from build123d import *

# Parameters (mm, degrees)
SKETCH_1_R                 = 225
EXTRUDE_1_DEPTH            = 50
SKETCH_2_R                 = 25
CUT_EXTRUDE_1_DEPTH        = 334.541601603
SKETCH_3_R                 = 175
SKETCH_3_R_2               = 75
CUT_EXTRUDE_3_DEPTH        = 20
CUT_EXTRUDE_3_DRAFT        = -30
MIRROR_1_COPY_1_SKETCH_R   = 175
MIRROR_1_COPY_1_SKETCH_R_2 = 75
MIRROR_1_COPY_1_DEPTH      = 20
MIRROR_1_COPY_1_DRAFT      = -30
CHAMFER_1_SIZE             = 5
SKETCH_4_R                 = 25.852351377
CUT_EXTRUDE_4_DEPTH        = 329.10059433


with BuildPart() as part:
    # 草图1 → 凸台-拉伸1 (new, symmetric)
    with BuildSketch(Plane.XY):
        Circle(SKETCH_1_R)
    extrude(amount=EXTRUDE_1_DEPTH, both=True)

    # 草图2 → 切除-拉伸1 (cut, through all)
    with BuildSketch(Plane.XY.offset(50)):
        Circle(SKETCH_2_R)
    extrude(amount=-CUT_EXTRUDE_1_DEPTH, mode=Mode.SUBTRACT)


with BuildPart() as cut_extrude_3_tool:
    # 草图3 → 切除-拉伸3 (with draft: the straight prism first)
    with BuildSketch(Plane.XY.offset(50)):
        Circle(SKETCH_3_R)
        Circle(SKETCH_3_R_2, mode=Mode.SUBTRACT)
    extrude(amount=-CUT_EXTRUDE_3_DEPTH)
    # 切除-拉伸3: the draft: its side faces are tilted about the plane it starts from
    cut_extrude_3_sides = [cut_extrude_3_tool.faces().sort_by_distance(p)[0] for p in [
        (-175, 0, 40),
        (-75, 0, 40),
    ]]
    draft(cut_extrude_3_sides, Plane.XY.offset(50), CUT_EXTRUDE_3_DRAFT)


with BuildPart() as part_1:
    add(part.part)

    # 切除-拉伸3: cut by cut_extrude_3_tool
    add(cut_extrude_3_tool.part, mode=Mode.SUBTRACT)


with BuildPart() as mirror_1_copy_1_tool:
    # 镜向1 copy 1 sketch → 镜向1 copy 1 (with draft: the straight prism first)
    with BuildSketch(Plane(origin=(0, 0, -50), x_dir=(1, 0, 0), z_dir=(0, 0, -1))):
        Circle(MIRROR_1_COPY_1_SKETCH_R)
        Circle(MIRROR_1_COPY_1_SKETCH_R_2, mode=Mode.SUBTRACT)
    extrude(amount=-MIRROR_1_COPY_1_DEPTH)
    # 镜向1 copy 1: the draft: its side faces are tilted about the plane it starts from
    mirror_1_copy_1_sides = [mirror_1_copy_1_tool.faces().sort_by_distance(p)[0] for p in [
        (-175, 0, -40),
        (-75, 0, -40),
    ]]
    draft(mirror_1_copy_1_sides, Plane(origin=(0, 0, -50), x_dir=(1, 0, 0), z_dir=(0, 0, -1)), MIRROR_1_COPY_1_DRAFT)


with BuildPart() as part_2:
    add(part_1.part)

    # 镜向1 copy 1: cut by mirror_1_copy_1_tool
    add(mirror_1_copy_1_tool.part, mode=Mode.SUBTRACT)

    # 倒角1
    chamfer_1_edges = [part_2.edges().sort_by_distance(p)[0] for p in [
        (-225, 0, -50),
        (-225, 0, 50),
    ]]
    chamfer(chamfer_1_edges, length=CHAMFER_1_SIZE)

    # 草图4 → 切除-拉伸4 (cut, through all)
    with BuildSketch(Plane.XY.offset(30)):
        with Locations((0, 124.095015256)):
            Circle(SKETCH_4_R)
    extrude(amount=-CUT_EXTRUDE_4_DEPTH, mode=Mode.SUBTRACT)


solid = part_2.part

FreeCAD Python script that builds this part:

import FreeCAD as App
import Part
import Sketcher

V = App.Vector
Q = App.Units.Quantity


def edges_at(feature, points):
    """Names of the edges that pass closest to the given points."""
    edges = feature.Shape.Edges
    near = lambda p: min(range(len(edges)), key=lambda i: edges[i].distToShape(Part.Vertex(*p))[0])
    return sorted({f"Edge{near(p) + 1}" for p in points})


def faces_at(feature, points):
    """Names of the faces that lie closest to the given points."""
    faces = feature.Shape.Faces
    near = lambda p: min(range(len(faces)), key=lambda i: faces[i].distToShape(Part.Vertex(*p))[0])
    return sorted({f"Face{near(p) + 1}" for p in points})

doc = App.newDocument("Part")
body = doc.addObject("PartDesign::Body", "Body")

# Sketch on XY plane
sketch1 = body.newObject("Sketcher::SketchObject", "Sketch")
sketch1.AttachmentSupport = (doc.getObject("XY_Plane"), [""])
sketch1.MapMode = "FlatFace"
sketch1.addGeometry(Part.Circle(V(0, 0, 0), V(0, 0, 1), 225), False)
sketch1.addConstraint(Sketcher.Constraint("Coincident", 0, 3, -1, 1))
sketch1.addConstraint(Sketcher.Constraint("Diameter", 0, Q("450 mm")))
pad1 = body.newObject("PartDesign::Pad", "Pad")
pad1.Profile = sketch1
pad1.Length = 100
pad1.Midplane = True

# Sketch on XY plane
sketch2 = body.newObject("Sketcher::SketchObject", "Sketch001")
sketch2.AttachmentSupport = (doc.getObject("XY_Plane"), [""])
sketch2.MapMode = "FlatFace"
sketch2.AttachmentOffset = App.Placement(V(0, 0, 50), App.Rotation())
sketch2.addGeometry(Part.Circle(V(0, 0, 0), V(0, 0, 1), 25), False)
sketch2.addConstraint(Sketcher.Constraint("Coincident", 0, 3, -1, 1))
sketch2.addConstraint(Sketcher.Constraint("Diameter", 0, Q("50 mm")))
pocket1 = body.newObject("PartDesign::Pocket", "Pocket")
pocket1.Profile = sketch2
pocket1.Type = "ThroughAll"
body2 = doc.addObject("PartDesign::Body", "Body001")

# Sketch on XY plane
sketch3 = body2.newObject("Sketcher::SketchObject", "Sketch002")
sketch3.AttachmentSupport = (doc.getObject("XY_Plane001"), [""])
sketch3.MapMode = "FlatFace"
sketch3.AttachmentOffset = App.Placement(V(0, 0, 50), App.Rotation())
sketch3.addGeometry(Part.Circle(V(0, 0, 0), V(0, 0, 1), 175), False)
sketch3.addGeometry(Part.Circle(V(0, 0, 0), V(0, 0, 1), 75), False)
sketch3.addConstraint(Sketcher.Constraint("Coincident", 0, 3, -1, 1))
sketch3.addConstraint(Sketcher.Constraint("Coincident", 1, 3, -1, 1))
sketch3.addConstraint(Sketcher.Constraint("Diameter", 0, Q("350 mm")))
sketch3.addConstraint(Sketcher.Constraint("Diameter", 1, Q("150 mm")))
pad2 = body2.newObject("PartDesign::Pad", "Pad001")
pad2.Profile = sketch3
pad2.Length = 20
pad2.Reversed = True
doc.recompute()

datumplane = body2.newObject("PartDesign::Plane", "DatumPlane")
datumplane.AttachmentSupport = (doc.getObject("XY_Plane001"), [""])
datumplane.MapMode = "FlatFace"
datumplane.AttachmentOffset = App.Placement(V(0, 0, 50), App.Rotation())
draft = body2.newObject("PartDesign::Draft", "Draft")
draft.Base = (pad2, faces_at(pad2, [(-175, 0, 40), (-75, 0, 40)]))
draft.NeutralPlane = (datumplane, [""])
draft.Angle = 30
draft.Reversed = True
doc.recompute()

boolean = body.newObject("PartDesign::Boolean", "Boolean")
boolean.Type = "Cut"
boolean.addObjects([body2])
body3 = doc.addObject("PartDesign::Body", "Body002")

# Sketch on XY plane
sketch4 = body3.newObject("Sketcher::SketchObject", "Sketch003")
sketch4.AttachmentSupport = (doc.getObject("XY_Plane002"), [""])
sketch4.MapMode = "FlatFace"
sketch4.AttachmentOffset = App.Placement(V(0, 0, -50), App.Rotation())
sketch4.addGeometry(Part.Circle(V(0, 0, 0), V(0, 0, 1), 175), False)
sketch4.addGeometry(Part.Circle(V(0, 0, 0), V(0, 0, 1), 75), False)
sketch4.addConstraint(Sketcher.Constraint("Coincident", 0, 3, -1, 1))
sketch4.addConstraint(Sketcher.Constraint("Coincident", 1, 3, -1, 1))
sketch4.addConstraint(Sketcher.Constraint("Diameter", 0, Q("350 mm")))
sketch4.addConstraint(Sketcher.Constraint("Diameter", 1, Q("150 mm")))
pad3 = body3.newObject("PartDesign::Pad", "Pad002")
pad3.Profile = sketch4
pad3.Length = 20
doc.recompute()

datumplane2 = body3.newObject("PartDesign::Plane", "DatumPlane001")
datumplane2.AttachmentSupport = (doc.getObject("XY_Plane002"), [""])
datumplane2.MapMode = "FlatFace"
datumplane2.AttachmentOffset = App.Placement(V(0, 0, -50), App.Rotation())
draft2 = body3.newObject("PartDesign::Draft", "Draft001")
draft2.Base = (pad3, faces_at(pad3, [(-175, 0, -40), (-75, 0, -40)]))
draft2.NeutralPlane = (datumplane2, [""])
draft2.Angle = 30
draft2.Reversed = False
doc.recompute()

boolean2 = body.newObject("PartDesign::Boolean", "Boolean001")
boolean2.Type = "Cut"
boolean2.addObjects([body3])
doc.recompute()

chamfer = body.newObject("PartDesign::Chamfer", "Chamfer")
chamfer.Base = (boolean2, edges_at(boolean2, [(-225, 0, -50), (-225, 0, 50)]))
chamfer.Size = 5

# Sketch on XY plane
sketch5 = body.newObject("Sketcher::SketchObject", "Sketch004")
sketch5.AttachmentSupport = (doc.getObject("XY_Plane"), [""])
sketch5.MapMode = "FlatFace"
sketch5.AttachmentOffset = App.Placement(V(0, 0, 30), App.Rotation())
sketch5.addGeometry(Part.Circle(V(0, 124, 0), V(0, 0, 1), 26), False)
sketch5.addConstraint(Sketcher.Constraint("PointOnObject", 0, 3, -2))
sketch5.addConstraint(Sketcher.Constraint("Diameter", 0, Q("51.704703 mm")))
sketch5.addConstraint(Sketcher.Constraint("DistanceY", -1, 1, 0, 3, Q("124.095015 mm")))
pocket2 = body.newObject("PartDesign::Pocket", "Pocket001")
pocket2.Profile = sketch5
pocket2.Type = "ThroughAll"

doc.recompute()
